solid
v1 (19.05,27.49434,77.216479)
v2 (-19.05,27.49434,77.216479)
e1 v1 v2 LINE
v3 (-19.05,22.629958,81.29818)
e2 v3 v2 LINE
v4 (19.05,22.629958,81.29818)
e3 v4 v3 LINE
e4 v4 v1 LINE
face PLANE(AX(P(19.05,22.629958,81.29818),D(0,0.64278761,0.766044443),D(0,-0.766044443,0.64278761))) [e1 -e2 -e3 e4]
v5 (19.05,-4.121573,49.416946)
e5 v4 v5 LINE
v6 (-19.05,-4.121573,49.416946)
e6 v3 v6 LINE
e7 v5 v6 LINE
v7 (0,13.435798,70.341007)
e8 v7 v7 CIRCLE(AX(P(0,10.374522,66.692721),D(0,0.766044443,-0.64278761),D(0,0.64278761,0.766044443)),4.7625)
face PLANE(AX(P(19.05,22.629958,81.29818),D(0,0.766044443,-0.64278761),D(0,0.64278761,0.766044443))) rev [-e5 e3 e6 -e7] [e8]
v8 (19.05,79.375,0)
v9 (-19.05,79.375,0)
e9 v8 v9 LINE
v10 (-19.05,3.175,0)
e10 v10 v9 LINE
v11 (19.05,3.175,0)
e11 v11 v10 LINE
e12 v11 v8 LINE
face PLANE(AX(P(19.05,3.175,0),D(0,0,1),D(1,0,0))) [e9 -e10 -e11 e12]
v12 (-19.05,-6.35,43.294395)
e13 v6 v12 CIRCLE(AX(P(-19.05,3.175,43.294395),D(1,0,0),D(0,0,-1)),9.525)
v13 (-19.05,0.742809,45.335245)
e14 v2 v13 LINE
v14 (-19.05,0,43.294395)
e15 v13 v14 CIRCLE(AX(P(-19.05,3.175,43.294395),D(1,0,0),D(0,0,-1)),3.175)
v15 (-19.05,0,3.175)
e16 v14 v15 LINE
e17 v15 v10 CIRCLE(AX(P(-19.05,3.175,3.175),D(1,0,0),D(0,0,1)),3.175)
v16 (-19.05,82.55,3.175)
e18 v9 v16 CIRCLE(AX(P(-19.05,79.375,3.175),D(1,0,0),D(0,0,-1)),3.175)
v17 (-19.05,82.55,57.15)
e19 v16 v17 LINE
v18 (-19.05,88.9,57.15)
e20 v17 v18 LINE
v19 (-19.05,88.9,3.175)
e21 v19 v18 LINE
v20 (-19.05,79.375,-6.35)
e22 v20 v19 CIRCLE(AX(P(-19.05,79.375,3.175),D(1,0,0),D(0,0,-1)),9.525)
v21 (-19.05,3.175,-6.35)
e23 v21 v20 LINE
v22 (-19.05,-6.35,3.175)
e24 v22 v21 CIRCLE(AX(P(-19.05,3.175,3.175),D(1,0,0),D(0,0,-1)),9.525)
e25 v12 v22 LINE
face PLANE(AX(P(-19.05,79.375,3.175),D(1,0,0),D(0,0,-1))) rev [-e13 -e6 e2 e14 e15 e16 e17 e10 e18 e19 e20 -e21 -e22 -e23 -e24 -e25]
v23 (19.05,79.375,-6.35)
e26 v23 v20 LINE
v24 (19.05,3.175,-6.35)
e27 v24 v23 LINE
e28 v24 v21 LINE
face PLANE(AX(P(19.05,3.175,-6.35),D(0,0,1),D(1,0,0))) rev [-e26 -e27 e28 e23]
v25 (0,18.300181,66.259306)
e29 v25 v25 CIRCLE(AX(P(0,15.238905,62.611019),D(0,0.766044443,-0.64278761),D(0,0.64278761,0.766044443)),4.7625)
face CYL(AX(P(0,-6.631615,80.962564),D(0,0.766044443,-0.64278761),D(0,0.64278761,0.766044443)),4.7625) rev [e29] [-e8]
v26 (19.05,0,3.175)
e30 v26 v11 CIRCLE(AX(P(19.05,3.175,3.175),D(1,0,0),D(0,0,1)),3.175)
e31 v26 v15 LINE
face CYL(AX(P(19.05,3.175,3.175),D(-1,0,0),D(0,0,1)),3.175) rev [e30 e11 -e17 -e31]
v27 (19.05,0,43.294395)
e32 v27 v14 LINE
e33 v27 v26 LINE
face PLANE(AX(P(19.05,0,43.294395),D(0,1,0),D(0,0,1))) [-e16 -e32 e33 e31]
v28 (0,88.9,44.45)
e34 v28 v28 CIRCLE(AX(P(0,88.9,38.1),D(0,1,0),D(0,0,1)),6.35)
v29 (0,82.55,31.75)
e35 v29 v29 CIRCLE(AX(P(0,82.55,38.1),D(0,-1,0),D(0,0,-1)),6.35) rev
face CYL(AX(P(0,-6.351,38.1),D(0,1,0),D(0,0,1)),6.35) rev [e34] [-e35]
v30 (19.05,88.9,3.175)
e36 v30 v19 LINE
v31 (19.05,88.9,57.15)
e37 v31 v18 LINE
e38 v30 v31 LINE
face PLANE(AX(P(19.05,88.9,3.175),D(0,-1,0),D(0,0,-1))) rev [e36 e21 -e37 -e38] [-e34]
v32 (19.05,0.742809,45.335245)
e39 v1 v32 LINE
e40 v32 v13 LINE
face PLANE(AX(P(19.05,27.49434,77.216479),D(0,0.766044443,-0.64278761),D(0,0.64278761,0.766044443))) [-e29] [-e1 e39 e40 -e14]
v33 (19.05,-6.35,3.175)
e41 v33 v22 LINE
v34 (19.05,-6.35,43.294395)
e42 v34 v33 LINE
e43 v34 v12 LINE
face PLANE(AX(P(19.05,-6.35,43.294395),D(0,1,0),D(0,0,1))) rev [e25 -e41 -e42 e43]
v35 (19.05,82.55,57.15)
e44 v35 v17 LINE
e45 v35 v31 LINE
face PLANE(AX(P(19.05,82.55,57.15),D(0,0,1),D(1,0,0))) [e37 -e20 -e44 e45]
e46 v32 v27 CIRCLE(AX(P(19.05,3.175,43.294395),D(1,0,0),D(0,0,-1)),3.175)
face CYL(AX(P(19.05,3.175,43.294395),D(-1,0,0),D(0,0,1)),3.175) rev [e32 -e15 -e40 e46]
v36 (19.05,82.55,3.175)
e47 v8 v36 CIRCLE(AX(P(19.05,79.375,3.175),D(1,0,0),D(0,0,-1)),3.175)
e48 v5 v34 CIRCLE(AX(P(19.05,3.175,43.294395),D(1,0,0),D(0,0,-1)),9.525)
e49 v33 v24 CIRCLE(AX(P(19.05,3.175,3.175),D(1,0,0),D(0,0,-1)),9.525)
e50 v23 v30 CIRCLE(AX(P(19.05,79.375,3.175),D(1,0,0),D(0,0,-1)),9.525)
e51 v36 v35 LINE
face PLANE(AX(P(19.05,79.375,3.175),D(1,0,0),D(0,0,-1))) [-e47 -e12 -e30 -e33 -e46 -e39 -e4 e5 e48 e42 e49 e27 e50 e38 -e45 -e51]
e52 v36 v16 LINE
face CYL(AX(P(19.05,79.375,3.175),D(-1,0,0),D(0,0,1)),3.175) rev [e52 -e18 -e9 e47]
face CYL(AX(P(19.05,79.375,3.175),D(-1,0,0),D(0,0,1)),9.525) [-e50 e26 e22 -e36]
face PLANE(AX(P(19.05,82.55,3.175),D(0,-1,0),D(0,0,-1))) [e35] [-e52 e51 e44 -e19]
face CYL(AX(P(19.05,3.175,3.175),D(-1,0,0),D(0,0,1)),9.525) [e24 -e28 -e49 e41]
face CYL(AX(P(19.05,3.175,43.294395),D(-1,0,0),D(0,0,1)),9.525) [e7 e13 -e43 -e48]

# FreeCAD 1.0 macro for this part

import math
import FreeCAD as App
import Part
import Sketcher

V = App.Vector
Q = App.Units.Quantity

doc = App.newDocument("Part")
params = doc.addObject("Spreadsheet::Sheet", "Params")
for row, (alias, value) in enumerate([
    ("sketch1_width", "3 in"),
    ("sketch1_radius", "0.375 in"),
    ("sketch1_radius2", "0.125 in"),
    ("pad1_length", "1.5 in"),
    ("sketch2_diameter", "0.5 in"),
    ("sketch3_diameter", "0.375 in"),
], start=1):
    params.set(f"A{row}", alias)
    params.set(f"B{row}", "=" + value)
    params.setAlias(f"B{row}", alias)

body = doc.addObject("PartDesign::Body", "Body")

# Sketch on YZ plane
sketch1 = body.newObject("Sketcher::SketchObject", "Sketch")
sketch1.AttachmentSupport = (doc.getObject("YZ_Plane"), [""])
sketch1.MapMode = "FlatFace"
sketch1.addGeometry(Part.LineSegment(V(0.742809, 45.335245, 0), V(27.49434, 77.216479, 0)), False)
sketch1.addGeometry(Part.LineSegment(V(27.49434, 77.216479, 0), V(22.629958, 81.29818, 0)), False)
sketch1.addGeometry(Part.LineSegment(V(22.629958, 81.29818, 0), V(-4.121573, 49.416946, 0)), False)
sketch1.addGeometry(Part.ArcOfCircle(Part.Circle(V(3.175, 43.294395, 0), V(0, 0, 1), 9.525), math.radians(140), math.radians(180)), False)
sketch1.addGeometry(Part.LineSegment(V(-6.35, 43.294395, 0), V(-6.35, 3.175, 0)), False)
sketch1.addGeometry(Part.ArcOfCircle(Part.Circle(V(3.175, 3.175, 0), V(0, 0, 1), 9.525), math.radians(180), math.radians(270)), False)
sketch1.addGeometry(Part.LineSegment(V(3.175, -6.35, 0), V(79.375, -6.35, 0)), False)
sketch1.addGeometry(Part.ArcOfCircle(Part.Circle(V(79.375, 3.175, 0), V(0, 0, 1), 9.525), math.radians(-90), math.radians(0)), False)
sketch1.addGeometry(Part.LineSegment(V(88.9, 3.175, 0), V(88.9, 57.15, 0)), False)
sketch1.addGeometry(Part.LineSegment(V(88.9, 57.15, 0), V(82.55, 57.15, 0)), False)
sketch1.addGeometry(Part.LineSegment(V(82.55, 57.15, 0), V(82.55, 3.175, 0)), False)
sketch1.addGeometry(Part.ArcOfCircle(Part.Circle(V(79.375, 3.175, 0), V(0, 0, 1), 3.175), math.radians(-90), math.radians(0)), False)
sketch1.addGeometry(Part.LineSegment(V(79.375, 0, 0), V(3.175, 0, 0)), False)
sketch1.addGeometry(Part.ArcOfCircle(Part.Circle(V(3.175, 3.175, 0), V(0, 0, 1), 3.175), math.radians(-180), math.radians(-90)), False)
sketch1.addGeometry(Part.LineSegment(V(0, 3.175, 0), V(0, 43.294395, 0)), False)
sketch1.addGeometry(Part.ArcOfCircle(Part.Circle(V(3.175, 43.294395, 0), V(0, 0, 1), 3.175), math.radians(140), math.radians(180)), False)
sketch1.addConstraint(Sketcher.Constraint("Coincident", 0, 2, 1, 1))
sketch1.addConstraint(Sketcher.Constraint("Coincident", 1, 2, 2, 1))
sketch1.addConstraint(Sketcher.Constraint("Tangent", 2, 2, 3, 1))
sketch1.addConstraint(Sketcher.Constraint("Tangent", 3, 2, 4, 1))
sketch1.addConstraint(Sketcher.Constraint("Tangent", 4, 2, 5, 1))
sketch1.addConstraint(Sketcher.Constraint("Tangent", 5, 2, 6, 1))
sketch1.addConstraint(Sketcher.Constraint("Tangent", 6, 2, 7, 1))
sketch1.addConstraint(Sketcher.Constraint("Tangent", 7, 2, 8, 1))
sketch1.addConstraint(Sketcher.Constraint("Coincident", 8, 2, 9, 1))
sketch1.addConstraint(Sketcher.Constraint("Coincident", 9, 2, 10, 1))
sketch1.addConstraint(Sketcher.Constraint("Tangent", 10, 2, 11, 2))
sketch1.addConstraint(Sketcher.Constraint("Tangent", 11, 1, 12, 1))
sketch1.addConstraint(Sketcher.Constraint("Tangent", 12, 2, 13, 2))
sketch1.addConstraint(Sketcher.Constraint("Tangent", 13, 1, 14, 1))
sketch1.addConstraint(Sketcher.Constraint("Tangent", 14, 2, 15, 2))
sketch1.addConstraint(Sketcher.Constraint("Tangent", 15, 1, 0, 1))
sketch1.addConstraint(Sketcher.Constraint("Vertical", 4))
sketch1.addConstraint(Sketcher.Constraint("Horizontal", 6))
sketch1.addConstraint(Sketcher.Constraint("Vertical", 8))
sketch1.addConstraint(Sketcher.Constraint("Horizontal", 9))
sketch1.addConstraint(Sketcher.Constraint("Vertical", 10))
sketch1.addConstraint(Sketcher.Constraint("Horizontal", 12))
sketch1.addConstraint(Sketcher.Constraint("Vertical", 14))
sketch1.addConstraint(Sketcher.Constraint("Coincident", 11, 3, 7, 3))
sketch1.addConstraint(Sketcher.Constraint("Coincident", 13, 3, 5, 3))
sketch1.addConstraint(Sketcher.Constraint("Coincident", 15, 3, 3, 3))
sketch1.addConstraint(Sketcher.Constraint("Equal", 3, 5))
sketch1.addConstraint(Sketcher.Constraint("Equal", 5, 7))
sketch1.addConstraint(Sketcher.Constraint("PointOnObject", 11, 1, -1))
sketch1.addConstraint(Sketcher.Constraint("PointOnObject", 13, 1, -2))
sketch1.addConstraint(Sketcher.Constraint("Perpendicular", 0, 1))
sketch1.addConstraint(Sketcher.Constraint("Perpendicular", 1, 2))
sketch1.addConstraint(Sketcher.Constraint("DistanceX", 6, 1, 6, 2, Q("3 in")))
sketch1.addConstraint(Sketcher.Constraint("Angle", 0, Q("50 deg")))
sketch1.addConstraint(Sketcher.Constraint("Radius", 3, Q("0.375 in")))
sketch1.addConstraint(Sketcher.Constraint("Radius", 11, Q("0.125 in")))
sketch1.addConstraint(Sketcher.Constraint("DistanceY", 6, 2, 8, 2, Q("2.5 in")))
sketch1.addConstraint(Sketcher.Constraint("DistanceY", 4, 2, 4, 1, 40.119395))
sketch1.addConstraint(Sketcher.Constraint("DistanceX", -1, 1, 0, 2, 27.49434))
sketch1.setExpression("Constraints[32]", "Params.sketch1_width")
sketch1.setExpression("Constraints[34]", "Params.sketch1_radius")
sketch1.setExpression("Constraints[35]", "Params.sketch1_radius2")
pad1 = body.newObject("PartDesign::Pad", "Pad")
pad1.Profile = sketch1
pad1.setExpression("Length", "Params.pad1_length")
pad1.Midplane = True

# Sketch on XZ plane
sketch2 = body.newObject("Sketcher::SketchObject", "Sketch001")
sketch2.AttachmentSupport = (doc.getObject("XZ_Plane"), [""])
sketch2.MapMode = "FlatFace"
sketch2.AttachmentOffset = App.Placement(V(0, 0, -3.5 * 25.4), App.Rotation())
sketch2.addGeometry(Part.Circle(V(0, 38.1, 0), V(0, 0, 1), 6.35), False)
sketch2.addConstraint(Sketcher.Constraint("PointOnObject", 0, 3, -2))
sketch2.addConstraint(Sketcher.Constraint("Diameter", 0, Q("0.5 in")))
sketch2.addConstraint(Sketcher.Constraint("DistanceY", -1, 1, 0, 3, Q("1.5 in")))
sketch2.setExpression("Constraints[1]", "Params.sketch2_diameter")
pocket1 = body.newObject("PartDesign::Pocket", "Pocket")
pocket1.Profile = sketch2
pocket1.Type = "UpToFirst"
pocket1.Reversed = True

# Sketch on an angled plane
sketch3 = body.newObject("Sketcher::SketchObject", "Sketch002")
sketch3.Placement = App.Placement(V(0, -21.887352, 18.365669), App.Rotation(V(1, 0, 0), V(0, -0.64278761, -0.766044443), V(0, 0.766044443, -0.64278761), "ZXY"))
sketch3.addGeometry(Part.Circle(V(0, -57.758203, 0), V(0, 0, 1), 4.7625), False)
sketch3.addConstraint(Sketcher.Constraint("PointOnObject", 0, 3, -2))
sketch3.addConstraint(Sketcher.Constraint("Diameter", 0, Q("0.375 in")))
sketch3.addConstraint(Sketcher.Constraint("DistanceY", 0, 3, -1, 1, 57.758203))
sketch3.setExpression("Constraints[1]", "Params.sketch3_diameter")
pocket2 = body.newObject("PartDesign::Pocket", "Pocket001")
pocket2.Profile = sketch3
pocket2.Type = "ThroughAll"

doc.recompute()
